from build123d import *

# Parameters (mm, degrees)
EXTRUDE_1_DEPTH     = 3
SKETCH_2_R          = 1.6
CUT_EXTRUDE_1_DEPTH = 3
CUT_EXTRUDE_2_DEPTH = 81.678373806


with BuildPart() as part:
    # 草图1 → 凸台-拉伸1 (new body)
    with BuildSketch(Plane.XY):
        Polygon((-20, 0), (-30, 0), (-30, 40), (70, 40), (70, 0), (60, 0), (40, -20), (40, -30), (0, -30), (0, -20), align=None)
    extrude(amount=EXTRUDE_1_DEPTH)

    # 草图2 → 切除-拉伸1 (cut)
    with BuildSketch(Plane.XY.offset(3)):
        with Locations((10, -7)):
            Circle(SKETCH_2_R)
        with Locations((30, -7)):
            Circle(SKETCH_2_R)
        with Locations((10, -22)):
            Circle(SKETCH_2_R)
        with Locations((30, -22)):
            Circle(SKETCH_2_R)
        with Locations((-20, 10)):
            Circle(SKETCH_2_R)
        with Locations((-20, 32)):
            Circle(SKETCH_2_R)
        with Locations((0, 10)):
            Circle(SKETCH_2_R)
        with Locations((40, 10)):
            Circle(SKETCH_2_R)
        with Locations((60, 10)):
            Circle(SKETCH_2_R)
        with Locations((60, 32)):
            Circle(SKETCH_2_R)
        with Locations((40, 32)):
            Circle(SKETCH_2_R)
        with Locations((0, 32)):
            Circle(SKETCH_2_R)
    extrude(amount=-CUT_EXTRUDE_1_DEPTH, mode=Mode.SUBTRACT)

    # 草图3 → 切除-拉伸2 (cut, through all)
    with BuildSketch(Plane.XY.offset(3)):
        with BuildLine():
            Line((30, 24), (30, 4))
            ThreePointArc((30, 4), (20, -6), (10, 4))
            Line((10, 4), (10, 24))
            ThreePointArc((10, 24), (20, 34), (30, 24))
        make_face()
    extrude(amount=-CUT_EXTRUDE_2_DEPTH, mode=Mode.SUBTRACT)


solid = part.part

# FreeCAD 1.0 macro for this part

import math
import FreeCAD as App
import Part
import Sketcher

doc = App.newDocument("Part")
body = doc.addObject("PartDesign::Body", "Body")

# Sketch on XY plane
sketch1 = doc.addObject("Sketcher::SketchObject", "Sketch")
body.addObject(sketch1)
sketch1.AttachmentSupport = (doc.XY_Plane, [""])
sketch1.MapMode = "FlatFace"
sketch1.addGeometry(Part.LineSegment(App.Vector(-30, 0, 0), App.Vector(-20, 0, 0)), False)
sketch1.addGeometry(Part.LineSegment(App.Vector(-20, 0, 0), App.Vector(0, -20, 0)), False)
sketch1.addGeometry(Part.LineSegment(App.Vector(0, -20, 0), App.Vector(0, -30, 0)), False)
sketch1.addGeometry(Part.LineSegment(App.Vector(0, -30, 0), App.Vector(40, -30, 0)), False)
sketch1.addGeometry(Part.LineSegment(App.Vector(40, -30, 0), App.Vector(40, -20, 0)), False)
sketch1.addGeometry(Part.LineSegment(App.Vector(40, -20, 0), App.Vector(60, 0, 0)), False)
sketch1.addGeometry(Part.LineSegment(App.Vector(60, 0, 0), App.Vector(70, 0, 0)), False)
sketch1.addGeometry(Part.LineSegment(App.Vector(70, 0, 0), App.Vector(70, 40, 0)), False)
sketch1.addGeometry(Part.LineSegment(App.Vector(70, 40, 0), App.Vector(-30, 40, 0)), False)
sketch1.addGeometry(Part.LineSegment(App.Vector(-30, 40, 0), App.Vector(-30, 0, 0)), False)
sketch1.addConstraint(Sketcher.Constraint("Coincident", 0, 2, 1, 1))
sketch1.addConstraint(Sketcher.Constraint("Coincident", 1, 2, 2, 1))
sketch1.addConstraint(Sketcher.Constraint("Coincident", 2, 2, 3, 1))
sketch1.addConstraint(Sketcher.Constraint("Coincident", 3, 2, 4, 1))
sketch1.addConstraint(Sketcher.Constraint("Coincident", 4, 2, 5, 1))
sketch1.addConstraint(Sketcher.Constraint("Coincident", 5, 2, 6, 1))
sketch1.addConstraint(Sketcher.Constraint("Coincident", 6, 2, 7, 1))
sketch1.addConstraint(Sketcher.Constraint("Coincident", 7, 2, 8, 1))
sketch1.addConstraint(Sketcher.Constraint("Coincident", 8, 2, 9, 1))
sketch1.addConstraint(Sketcher.Constraint("Coincident", 9, 2, 0, 1))
sketch1.addConstraint(Sketcher.Constraint("Horizontal", 0))
sketch1.addConstraint(Sketcher.Constraint("Vertical", 2))
sketch1.addConstraint(Sketcher.Constraint("Horizontal", 3))
sketch1.addConstraint(Sketcher.Constraint("Vertical", 4))
sketch1.addConstraint(Sketcher.Constraint("Horizontal", 6))
sketch1.addConstraint(Sketcher.Constraint("Vertical", 7))
sketch1.addConstraint(Sketcher.Constraint("Horizontal", 8))
sketch1.addConstraint(Sketcher.Constraint("Vertical", 9))
sketch1.addConstraint(Sketcher.Constraint("PointOnObject", 0, 2, -1))
sketch1.addConstraint(Sketcher.Constraint("PointOnObject", 1, 2, -2))
sketch1.addConstraint(Sketcher.Constraint("PointOnObject", 5, 2, -1))
sketch1.addConstraint(Sketcher.Constraint("Perpendicular", 1, 5))
sketch1.addConstraint(Sketcher.Constraint("Horizontal", 1, 2, 4, 2))
sketch1.addConstraint(Sketcher.Constraint("Equal", 0, 6))
sketch1.addConstraint(Sketcher.Constraint("Equal", 6, 2))
sketch1.addConstraint(Sketcher.Constraint("Equal", 3, 7))
sketch1.addConstraint(Sketcher.Constraint("Equal", 1, 5))
sketch1.addConstraint(Sketcher.Constraint("DistanceX", 0, 1, 0, 2, 10.0))
sketch1.addConstraint(Sketcher.Constraint("DistanceX", 3, 1, 3, 2, 40.0))
sketch1.addConstraint(Sketcher.Constraint("DistanceX", 8, 2, 8, 1, 100.0))
pad1 = doc.addObject("PartDesign::Pad", "Pad")
body.addObject(pad1)
pad1.Profile = sketch1
pad1.Length = 3

# Sketch on XY plane
sketch2 = doc.addObject("Sketcher::SketchObject", "Sketch001")
body.addObject(sketch2)
sketch2.AttachmentSupport = (doc.XY_Plane, [""])
sketch2.MapMode = "FlatFace"
sketch2.AttachmentOffset = App.Placement(App.Vector(0, 0, 3), App.Rotation())
sketch2.addGeometry(Part.Circle(App.Vector(10, -7, 0), App.Vector(0, 0, 1), 1.6), False)
sketch2.addGeometry(Part.Circle(App.Vector(30, -7, 0), App.Vector(0, 0, 1), 1.6), False)
sketch2.addGeometry(Part.Circle(App.Vector(10, -22, 0), App.Vector(0, 0, 1), 1.6), False)
sketch2.addGeometry(Part.Circle(App.Vector(30, -22, 0), App.Vector(0, 0, 1), 1.6), False)
sketch2.addGeometry(Part.Circle(App.Vector(-20, 10, 0), App.Vector(0, 0, 1), 1.6), False)
sketch2.addGeometry(Part.Circle(App.Vector(-20, 32, 0), App.Vector(0, 0, 1), 1.6), False)
sketch2.addGeometry(Part.Circle(App.Vector(0, 10, 0), App.Vector(0, 0, 1), 1.6), False)
sketch2.addGeometry(Part.Circle(App.Vector(40, 10, 0), App.Vector(0, 0, 1), 1.6), False)
sketch2.addGeometry(Part.Circle(App.Vector(60, 10, 0), App.Vector(0, 0, 1), 1.6), False)
sketch2.addGeometry(Part.Circle(App.Vector(60, 32, 0), App.Vector(0, 0, 1), 1.6), False)
sketch2.addGeometry(Part.Circle(App.Vector(40, 32, 0), App.Vector(0, 0, 1), 1.6), False)
sketch2.addGeometry(Part.Circle(App.Vector(0, 32, 0), App.Vector(0, 0, 1), 1.6), False)
sketch2.addConstraint(Sketcher.Constraint("Equal", 0, 1))
sketch2.addConstraint(Sketcher.Constraint("Equal", 1, 2))
sketch2.addConstraint(Sketcher.Constraint("Equal", 2, 3))
sketch2.addConstraint(Sketcher.Constraint("Equal", 3, 4))
sketch2.addConstraint(Sketcher.Constraint("Equal", 4, 5))
sketch2.addConstraint(Sketcher.Constraint("Equal", 5, 6))
sketch2.addConstraint(Sketcher.Constraint("Equal", 6, 7))
sketch2.addConstraint(Sketcher.Constraint("Equal", 7, 8))
sketch2.addConstraint(Sketcher.Constraint("Equal", 8, 9))
sketch2.addConstraint(Sketcher.Constraint("Equal", 9, 10))
sketch2.addConstraint(Sketcher.Constraint("Equal", 10, 11))
sketch2.addConstraint(Sketcher.Constraint("PointOnObject", 6, 3, -2))
sketch2.addConstraint(Sketcher.Constraint("PointOnObject", 11, 3, -2))
sketch2.addConstraint(Sketcher.Constraint("Horizontal", 0, 3, 1, 3))
sketch2.addConstraint(Sketcher.Constraint("Horizontal", 2, 3, 3, 3))
sketch2.addConstraint(Sketcher.Constraint("Horizontal", 4, 3, 6, 3))
sketch2.addConstraint(Sketcher.Constraint("Horizontal", 6, 3, 7, 3))
sketch2.addConstraint(Sketcher.Constraint("Horizontal", 7, 3, 8, 3))
sketch2.addConstraint(Sketcher.Constraint("Horizontal", 5, 3, 9, 3))
sketch2.addConstraint(Sketcher.Constraint("Horizontal", 9, 3, 10, 3))
sketch2.addConstraint(Sketcher.Constraint("Horizontal", 10, 3, 11, 3))
sketch2.addConstraint(Sketcher.Constraint("Vertical", 0, 3, 2, 3))
sketch2.addConstraint(Sketcher.Constraint("Vertical", 1, 3, 3, 3))
sketch2.addConstraint(Sketcher.Constraint("Vertical", 4, 3, 5, 3))
sketch2.addConstraint(Sketcher.Constraint("Vertical", 8, 3, 9, 3))
sketch2.addConstraint(Sketcher.Constraint("Vertical", 7, 3, 10, 3))
sketch2.addConstraint(Sketcher.Constraint("Diameter", 0, 3.2))
sketch2.addConstraint(Sketcher.Constraint("DistanceX", -1, 1, 0, 3, 10.0))
sketch2.addConstraint(Sketcher.Constraint("DistanceY", 0, 3, -1, 1, 7.0))
sketch2.addConstraint(Sketcher.Constraint("DistanceX", -1, 1, 1, 3, 30.0))
sketch2.addConstraint(Sketcher.Constraint("DistanceY", 2, 3, -1, 1, 22.0))
sketch2.addConstraint(Sketcher.Constraint("DistanceX", 4, 3, -1, 1, 20.0))
sketch2.addConstraint(Sketcher.Constraint("DistanceY", -1, 1, 4, 3, 10.0))
sketch2.addConstraint(Sketcher.Constraint("DistanceY", -1, 1, 5, 3, 32.0))
sketch2.addConstraint(Sketcher.Constraint("DistanceX", -1, 1, 7, 3, 40.0))
sketch2.addConstraint(Sketcher.Constraint("DistanceX", -1, 1, 8, 3, 60.0))
pocket1 = doc.addObject("PartDesign::Pocket", "Pocket")
body.addObject(pocket1)
pocket1.Profile = sketch2
pocket1.Length = 3

# Sketch on XY plane
sketch3 = doc.addObject("Sketcher::SketchObject", "Sketch002")
body.addObject(sketch3)
sketch3.AttachmentSupport = (doc.XY_Plane, [""])
sketch3.MapMode = "FlatFace"
sketch3.AttachmentOffset = App.Placement(App.Vector(0, 0, 3), App.Rotation())
sketch3.addGeometry(Part.LineSegment(App.Vector(30, 4, 0), App.Vector(30, 24, 0)), False)
sketch3.addGeometry(Part.ArcOfCircle(Part.Circle(App.Vector(20, 24, 0), App.Vector(0, 0, 1), 10), math.radians(0), math.radians(180)), False)
sketch3.addGeometry(Part.LineSegment(App.Vector(10, 24, 0), App.Vector(10, 4, 0)), False)
sketch3.addGeometry(Part.ArcOfCircle(Part.Circle(App.Vector(20, 4, 0), App.Vector(0, 0, 1), 10), math.radians(180), math.radians(360)), False)
sketch3.addConstraint(Sketcher.Constraint("Tangent", 0, 2, 1, 1))
sketch3.addConstraint(Sketcher.Constraint("Tangent", 1, 2, 2, 1))
sketch3.addConstraint(Sketcher.Constraint("Tangent", 2, 2, 3, 1))
sketch3.addConstraint(Sketcher.Constraint("Tangent", 3, 2, 0, 1))
sketch3.addConstraint(Sketcher.Constraint("Vertical", 0))
sketch3.addConstraint(Sketcher.Constraint("Vertical", 2))
sketch3.addConstraint(Sketcher.Constraint("Radius", 1, 10.0))
sketch3.addConstraint(Sketcher.Constraint("DistanceY", 0, 1, 0, 2, 20.0))
sketch3.addConstraint(Sketcher.Constraint("DistanceX", -1, 1, 1, 3, 20.0))
sketch3.addConstraint(Sketcher.Constraint("DistanceY", -1, 1, 1, 3, 24.0))
pocket2 = doc.addObject("PartDesign::Pocket", "Pocket001")
body.addObject(pocket2)
pocket2.Profile = sketch3
pocket2.Type = "ThroughAll"

doc.recompute()
